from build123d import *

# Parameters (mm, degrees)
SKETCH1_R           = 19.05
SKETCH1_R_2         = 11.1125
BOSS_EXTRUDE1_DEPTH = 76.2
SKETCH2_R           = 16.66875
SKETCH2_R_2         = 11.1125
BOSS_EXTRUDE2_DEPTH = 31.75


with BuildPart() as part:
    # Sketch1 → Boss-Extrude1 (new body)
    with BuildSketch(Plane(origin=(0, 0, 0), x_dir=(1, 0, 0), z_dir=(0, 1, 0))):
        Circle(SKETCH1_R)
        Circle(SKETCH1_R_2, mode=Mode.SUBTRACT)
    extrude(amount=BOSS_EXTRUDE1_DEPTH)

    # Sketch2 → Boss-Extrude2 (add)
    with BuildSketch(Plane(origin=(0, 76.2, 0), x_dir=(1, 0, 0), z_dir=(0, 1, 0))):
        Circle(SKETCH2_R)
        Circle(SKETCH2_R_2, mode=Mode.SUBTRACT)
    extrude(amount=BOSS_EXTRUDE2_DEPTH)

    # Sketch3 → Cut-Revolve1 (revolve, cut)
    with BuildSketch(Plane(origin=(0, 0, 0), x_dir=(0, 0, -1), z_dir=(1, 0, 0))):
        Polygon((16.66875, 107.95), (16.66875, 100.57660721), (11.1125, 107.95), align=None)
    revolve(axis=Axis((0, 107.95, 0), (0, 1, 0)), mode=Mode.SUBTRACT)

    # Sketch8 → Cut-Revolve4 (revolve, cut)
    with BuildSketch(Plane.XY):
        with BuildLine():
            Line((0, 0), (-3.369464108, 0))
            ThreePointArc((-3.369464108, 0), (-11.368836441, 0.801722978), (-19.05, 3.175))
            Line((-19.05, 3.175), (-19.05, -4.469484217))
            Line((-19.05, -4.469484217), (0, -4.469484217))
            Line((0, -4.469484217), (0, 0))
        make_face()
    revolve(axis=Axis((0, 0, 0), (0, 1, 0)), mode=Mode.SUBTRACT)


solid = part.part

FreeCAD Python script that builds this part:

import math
import FreeCAD as App
import Part
import Sketcher

V = App.Vector
Q = App.Units.Quantity

doc = App.newDocument("Part")
params = doc.addObject("Spreadsheet::Sheet", "Params")
for row, (alias, value) in enumerate([
    ("sketch1_diameter", "1.5 in"),
    ("sketch1_diameter2", "0.875 in"),
    ("pad1_length", "3 in"),
    ("sketch2_diameter", "1.3125 in"),
    ("sketch2_diameter2", "0.875 in"),
    ("pad2_length", "1.25 in"),
    ("sketch3_height", "0.21875 in"),
    ("groove_angle", "360 deg"),
    ("sketch4_width", "0.75 in"),
    ("groove2_angle", "360 deg"),
], start=1):
    params.set(f"A{row}", alias)
    params.set(f"B{row}", "=" + value)
    params.setAlias(f"B{row}", alias)

body = doc.addObject("PartDesign::Body", "Body")

sketch1 = doc.addObject("Sketcher::SketchObject", "Sketch")
body.addObject(sketch1)
sketch1.AttachmentSupport = (doc.XZ_Plane, [""])
sketch1.MapMode = "FlatFace"
sketch1.addGeometry(Part.Circle(V(0, 0, 0), V(0, 0, 1), 19.05), False)
sketch1.addGeometry(Part.Circle(V(0, 0, 0), V(0, 0, 1), 11.1125), False)
sketch1.addConstraint(Sketcher.Constraint("Coincident", 0, 3, -1, 1))
sketch1.addConstraint(Sketcher.Constraint("Coincident", 1, 3, -1, 1))
sketch1.addConstraint(Sketcher.Constraint("Diameter", 0, Q("1.5 in")))
sketch1.addConstraint(Sketcher.Constraint("Diameter", 1, Q("0.875 in")))
sketch1.setExpression("Constraints[2]", "Params.sketch1_diameter")
sketch1.setExpression("Constraints[3]", "Params.sketch1_diameter2")
pad1 = doc.addObject("PartDesign::Pad", "Pad")
body.addObject(pad1)
pad1.Profile = sketch1
pad1.setExpression("Length", "Params.pad1_length")
pad1.Reversed = True

sketch2 = doc.addObject("Sketcher::SketchObject", "Sketch001")
body.addObject(sketch2)
sketch2.AttachmentSupport = (doc.XZ_Plane, [""])
sketch2.MapMode = "FlatFace"
sketch2.AttachmentOffset = App.Placement(V(0, 0, -3 * 25.4), App.Rotation())
sketch2.addGeometry(Part.Circle(V(0, 0, 0), V(0, 0, 1), 16.66875), False)
sketch2.addGeometry(Part.Circle(V(0, 0, 0), V(0, 0, 1), 11.1125), False)
sketch2.addConstraint(Sketcher.Constraint("Coincident", 0, 3, -1, 1))
sketch2.addConstraint(Sketcher.Constraint("Coincident", 1, 3, -1, 1))
sketch2.addConstraint(Sketcher.Constraint("Diameter", 0, Q("1.3125 in")))
sketch2.addConstraint(Sketcher.Constraint("Diameter", 1, Q("0.875 in")))
sketch2.setExpression("Constraints[2]", "Params.sketch2_diameter")
sketch2.setExpression("Constraints[3]", "Params.sketch2_diameter2")
pad2 = doc.addObject("PartDesign::Pad", "Pad001")
body.addObject(pad2)
pad2.Profile = sketch2
pad2.setExpression("Length", "Params.pad2_length")
pad2.Reversed = True

sketch3 = doc.addObject("Sketcher::SketchObject", "Sketch002")
body.addObject(sketch3)
sketch3.AttachmentSupport = (doc.YZ_Plane, [""])
sketch3.MapMode = "FlatFace"
sketch3.addGeometry(Part.LineSegment(V(100.576607, -16.66875, 0), V(107.95, -16.66875, 0)), False)
sketch3.addGeometry(Part.LineSegment(V(107.95, -16.66875, 0), V(107.95, -11.1125, 0)), False)
sketch3.addGeometry(Part.LineSegment(V(107.95, -11.1125, 0), V(100.576607, -16.66875, 0)), False)
sketch3.addConstraint(Sketcher.Constraint("Coincident", 0, 2, 1, 1))
sketch3.addConstraint(Sketcher.Constraint("Coincident", 1, 2, 2, 1))
sketch3.addConstraint(Sketcher.Constraint("Coincident", 2, 2, 0, 1))
sketch3.addConstraint(Sketcher.Constraint("Horizontal", 0))
sketch3.addConstraint(Sketcher.Constraint("Vertical", 1))
sketch3.addConstraint(Sketcher.Constraint("Angle", 2, Q("-143 deg")))
sketch3.addConstraint(Sketcher.Constraint("DistanceY", 1, 1, 1, 2, Q("0.21875 in")))
sketch3.addConstraint(Sketcher.Constraint("DistanceX", -1, 1, 0, 2, Q("4.25 in")))
sketch3.addConstraint(Sketcher.Constraint("DistanceY", 0, 2, -1, 1, Q("0.65625 in")))
sketch3.setExpression("Constraints[6]", "Params.sketch3_height")
groove = doc.addObject("PartDesign::Groove", "Groove")
body.addObject(groove)
groove.Profile = sketch3
groove.ReferenceAxis = (sketch3, ["H_Axis"])
groove.setExpression("Angle", "Params.groove_angle")

sketch4 = doc.addObject("Sketcher::SketchObject", "Sketch003")
body.addObject(sketch4)
sketch4.AttachmentSupport = (doc.XY_Plane, [""])
sketch4.MapMode = "FlatFace"
sketch4.addGeometry(Part.LineSegment(V(0, 0, 0), V(-3.369464, 0, 0)), False)
sketch4.addGeometry(Part.ArcOfCircle(Part.Circle(V(-3.369464, 40.308635, 0), V(0, 0, 1), 40.308635), math.radians(-112.893027), math.radians(-90)), False)
sketch4.addGeometry(Part.LineSegment(V(-19.05, 3.175, 0), V(-19.05, -4.469484, 0)), False)
sketch4.addGeometry(Part.LineSegment(V(-19.05, -4.469484, 0), V(0, -4.469484, 0)), False)
sketch4.addGeometry(Part.LineSegment(V(0, -4.469484, 0), V(0, 0, 0)), False)
sketch4.addConstraint(Sketcher.Constraint("Tangent", 0, 2, 1, 2))
sketch4.addConstraint(Sketcher.Constraint("Coincident", 1, 1, 2, 1))
sketch4.addConstraint(Sketcher.Constraint("Coincident", 2, 2, 3, 1))
sketch4.addConstraint(Sketcher.Constraint("Coincident", 3, 2, 4, 1))
sketch4.addConstraint(Sketcher.Constraint("Coincident", 4, 2, 0, 1))
sketch4.addConstraint(Sketcher.Constraint("Horizontal", 0))
sketch4.addConstraint(Sketcher.Constraint("Vertical", 2))
sketch4.addConstraint(Sketcher.Constraint("Horizontal", 3))
sketch4.addConstraint(Sketcher.Constraint("Vertical", 4))
sketch4.addConstraint(Sketcher.Constraint("Coincident", 4, 2, -1, 1))
sketch4.addConstraint(Sketcher.Constraint("DistanceX", 3, 1, 3, 2, Q("0.75 in")))
sketch4.addConstraint(Sketcher.Constraint("DistanceY", -1, 1, 1, 1, Q("0.125 in")))
sketch4.addConstraint(Sketcher.Constraint("Radius", 1, Q("40.308635 mm")))
sketch4.addConstraint(Sketcher.Constraint("DistanceY", 2, 2, 2, 1, Q("7.644484 mm")))
sketch4.setExpression("Constraints[10]", "Params.sketch4_width")
groove2 = doc.addObject("PartDesign::Groove", "Groove001")
body.addObject(groove2)
groove2.Profile = sketch4
groove2.ReferenceAxis = (sketch4, ["V_Axis"])
groove2.setExpression("Angle", "Params.groove2_angle")

doc.recompute()
